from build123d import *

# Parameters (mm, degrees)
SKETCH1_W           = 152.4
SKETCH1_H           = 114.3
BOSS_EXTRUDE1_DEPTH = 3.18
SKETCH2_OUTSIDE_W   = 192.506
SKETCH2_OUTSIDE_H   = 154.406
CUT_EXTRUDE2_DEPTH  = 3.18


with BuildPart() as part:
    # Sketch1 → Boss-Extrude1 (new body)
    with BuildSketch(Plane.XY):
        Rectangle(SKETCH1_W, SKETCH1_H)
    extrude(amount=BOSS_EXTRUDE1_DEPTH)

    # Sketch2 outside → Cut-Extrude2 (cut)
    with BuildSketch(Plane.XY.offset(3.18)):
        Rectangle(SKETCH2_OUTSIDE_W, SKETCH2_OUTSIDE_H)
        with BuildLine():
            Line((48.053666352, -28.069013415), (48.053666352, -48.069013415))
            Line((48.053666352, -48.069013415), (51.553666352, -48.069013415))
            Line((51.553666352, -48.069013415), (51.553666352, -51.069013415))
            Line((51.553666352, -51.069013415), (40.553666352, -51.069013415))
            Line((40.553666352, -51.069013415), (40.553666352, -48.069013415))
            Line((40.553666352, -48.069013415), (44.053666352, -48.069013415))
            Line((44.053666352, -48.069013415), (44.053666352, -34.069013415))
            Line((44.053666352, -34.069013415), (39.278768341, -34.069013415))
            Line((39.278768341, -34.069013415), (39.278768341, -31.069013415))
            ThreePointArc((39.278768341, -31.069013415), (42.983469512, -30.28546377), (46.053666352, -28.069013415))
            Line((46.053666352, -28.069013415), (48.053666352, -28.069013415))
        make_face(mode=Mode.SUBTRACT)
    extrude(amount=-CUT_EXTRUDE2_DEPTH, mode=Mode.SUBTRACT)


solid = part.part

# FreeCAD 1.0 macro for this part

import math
import FreeCAD as App
import Part
import Sketcher

V = App.Vector
Q = App.Units.Quantity

doc = App.newDocument("Part")
body = doc.addObject("PartDesign::Body", "Body")

sketch1 = body.newObject("Sketcher::SketchObject", "Sketch")
sketch1.AttachmentSupport = (doc.getObject("XY_Plane"), [""])
sketch1.MapMode = "FlatFace"
sketch1.addGeometry([
    Part.LineSegment(V(-76, 57, 0), V(-76, -57, 0)),
    Part.LineSegment(V(-76, -57, 0), V(76, -57, 0)),
    Part.LineSegment(V(76, -57, 0), V(76, 57, 0)),
    Part.LineSegment(V(76, 57, 0), V(-76, 57, 0)),
], False)
sketch1.addConstraint([
    Sketcher.Constraint("Coincident", 0, 2, 1, 1),
    Sketcher.Constraint("Coincident", 1, 2, 2, 1),
    Sketcher.Constraint("Coincident", 2, 2, 3, 1),
    Sketcher.Constraint("Coincident", 3, 2, 0, 1),
    Sketcher.Constraint("Vertical", 0),
    Sketcher.Constraint("Horizontal", 1),
    Sketcher.Constraint("Vertical", 2),
    Sketcher.Constraint("Horizontal", 3),
    Sketcher.Constraint("Symmetric", 0, 2, 2, 2, -1, 1),
    Sketcher.Constraint("DistanceX", 1, 1, 1, 2, Q("152.4 mm")),
    Sketcher.Constraint("DistanceY", 0, 2, 0, 1, Q("114.3 mm")),
])
pad1 = body.newObject("PartDesign::Pad", "Pad")
pad1.Profile = sketch1
pad1.Length = 3.18

sketch2 = body.newObject("Sketcher::SketchObject", "Sketch001")
sketch2.AttachmentSupport = (doc.getObject("XY_Plane"), [""])
sketch2.MapMode = "FlatFace"
sketch2.AttachmentOffset = App.Placement(V(0, 0, 3.18), App.Rotation())
sketch2.addGeometry([
    Part.LineSegment(V(-96.3, 77.2, 0), V(-96.3, -77.2, 0)),
    Part.LineSegment(V(-96.3, -77.2, 0), V(96.3, -77.2, 0)),
    Part.LineSegment(V(96.3, -77.2, 0), V(96.3, 77.2, 0)),
    Part.LineSegment(V(96.3, 77.2, 0), V(-96.3, 77.2, 0)),
    Part.LineSegment(V(46.1, -28.1, 0), V(48.1, -28.1, 0)),
    Part.LineSegment(V(48.1, -28.1, 0), V(48.1, -48.1, 0)),
    Part.LineSegment(V(48.1, -48.1, 0), V(51.6, -48.1, 0)),
    Part.LineSegment(V(51.6, -48.1, 0), V(51.6, -51.1, 0)),
    Part.LineSegment(V(51.6, -51.1, 0), V(40.6, -51.1, 0)),
    Part.LineSegment(V(40.6, -51.1, 0), V(40.6, -48.1, 0)),
    Part.LineSegment(V(40.6, -48.1, 0), V(44.1, -48.1, 0)),
    Part.LineSegment(V(44.1, -48.1, 0), V(44.1, -34.1, 0)),
    Part.LineSegment(V(44.1, -34.1, 0), V(39.3, -34.1, 0)),
    Part.LineSegment(V(39.3, -34.1, 0), V(39.3, -31.1, 0)),
    Part.ArcOfCircle(Part.Circle(V(39.3, -21.9, 0), V(0, 0, 1), 9.1), math.radians(-90), math.radians(-42)),
], False)
sketch2.addConstraint([
    Sketcher.Constraint("Coincident", 0, 2, 1, 1),
    Sketcher.Constraint("Coincident", 1, 2, 2, 1),
    Sketcher.Constraint("Coincident", 2, 2, 3, 1),
    Sketcher.Constraint("Coincident", 3, 2, 0, 1),
    Sketcher.Constraint("Coincident", 4, 2, 5, 1),
    Sketcher.Constraint("Coincident", 5, 2, 6, 1),
    Sketcher.Constraint("Coincident", 6, 2, 7, 1),
    Sketcher.Constraint("Coincident", 7, 2, 8, 1),
    Sketcher.Constraint("Coincident", 8, 2, 9, 1),
    Sketcher.Constraint("Coincident", 9, 2, 10, 1),
    Sketcher.Constraint("Coincident", 10, 2, 11, 1),
    Sketcher.Constraint("Coincident", 11, 2, 12, 1),
    Sketcher.Constraint("Coincident", 12, 2, 13, 1),
    Sketcher.Constraint("Coincident", 13, 2, 14, 1),
    Sketcher.Constraint("Coincident", 14, 2, 4, 1),
    Sketcher.Constraint("Vertical", 0),
    Sketcher.Constraint("Horizontal", 1),
    Sketcher.Constraint("Vertical", 2),
    Sketcher.Constraint("Horizontal", 3),
    Sketcher.Constraint("Horizontal", 4),
    Sketcher.Constraint("Vertical", 5),
    Sketcher.Constraint("Horizontal", 6),
    Sketcher.Constraint("Vertical", 7),
    Sketcher.Constraint("Horizontal", 8),
    Sketcher.Constraint("Vertical", 9),
    Sketcher.Constraint("Horizontal", 10),
    Sketcher.Constraint("Vertical", 11),
    Sketcher.Constraint("Horizontal", 12),
    Sketcher.Constraint("Vertical", 13),
    Sketcher.Constraint("Symmetric", 0, 2, 2, 2, -1, 1),
    Sketcher.Constraint("Horizontal", 6, 2, 9, 2),
    Sketcher.Constraint("Vertical", 14, 3, 12, 2),
    Sketcher.Constraint("Equal", 6, 10),
    Sketcher.Constraint("Equal", 9, 13),
    Sketcher.Constraint("DistanceX", 4, 1, 4, 2, Q("2 mm")),
    Sketcher.Constraint("DistanceX", 8, 2, 8, 1, Q("11 mm")),
    Sketcher.Constraint("DistanceY", 5, 2, 5, 1, Q("20 mm")),
    Sketcher.Constraint("DistanceY", 7, 2, 7, 1, Q("3 mm")),
    Sketcher.Constraint("DistanceY", 11, 1, 11, 2, Q("14 mm")),
    Sketcher.Constraint("DistanceX", 6, 1, 6, 2, Q("3.5 mm")),
    Sketcher.Constraint("DistanceX", 1, 1, 1, 2, Q("192.506 mm")),
    Sketcher.Constraint("DistanceY", 0, 2, 0, 1, Q("154.406 mm")),
    Sketcher.Constraint("DistanceX", 12, 2, 12, 1, Q("4.774898 mm")),
    Sketcher.Constraint("DistanceX", -1, 1, 14, 3, Q("39.278768 mm")),
    Sketcher.Constraint("DistanceY", 14, 3, -1, 1, Q("21.91914 mm")),
])
pocket1 = body.newObject("PartDesign::Pocket", "Pocket")
pocket1.Profile = sketch2
pocket1.Length = 3.18

doc.recompute()
